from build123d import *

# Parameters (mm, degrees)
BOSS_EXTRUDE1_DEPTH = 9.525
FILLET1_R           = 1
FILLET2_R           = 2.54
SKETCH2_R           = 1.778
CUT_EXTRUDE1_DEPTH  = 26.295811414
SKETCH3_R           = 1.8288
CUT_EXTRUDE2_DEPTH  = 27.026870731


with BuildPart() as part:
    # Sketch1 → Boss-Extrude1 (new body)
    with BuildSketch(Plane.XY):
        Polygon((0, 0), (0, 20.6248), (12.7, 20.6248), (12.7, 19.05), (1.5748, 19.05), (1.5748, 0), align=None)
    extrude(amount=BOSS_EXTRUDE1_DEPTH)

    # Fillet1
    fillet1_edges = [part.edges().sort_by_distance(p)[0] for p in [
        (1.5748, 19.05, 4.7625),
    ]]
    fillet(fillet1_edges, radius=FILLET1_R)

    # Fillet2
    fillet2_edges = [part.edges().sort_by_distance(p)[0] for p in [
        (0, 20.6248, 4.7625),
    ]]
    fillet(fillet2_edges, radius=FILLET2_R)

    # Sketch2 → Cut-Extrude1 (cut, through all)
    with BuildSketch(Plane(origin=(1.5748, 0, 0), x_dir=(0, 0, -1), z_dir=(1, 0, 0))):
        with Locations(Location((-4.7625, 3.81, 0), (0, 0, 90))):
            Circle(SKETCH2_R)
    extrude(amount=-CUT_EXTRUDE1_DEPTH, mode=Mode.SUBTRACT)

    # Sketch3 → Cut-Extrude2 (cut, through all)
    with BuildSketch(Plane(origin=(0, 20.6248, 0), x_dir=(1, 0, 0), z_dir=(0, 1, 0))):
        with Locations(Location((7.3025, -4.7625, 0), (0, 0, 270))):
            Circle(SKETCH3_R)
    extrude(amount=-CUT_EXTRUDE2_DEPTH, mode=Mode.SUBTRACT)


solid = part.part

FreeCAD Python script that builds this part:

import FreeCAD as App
import Part
import Sketcher

V = App.Vector
Q = App.Units.Quantity


def edges_at(feature, points):
    """Names of the edges that pass closest to the given points."""
    edges = feature.Shape.Edges
    near = lambda p: min(range(len(edges)), key=lambda i: edges[i].distToShape(Part.Vertex(*p))[0])
    return sorted({f"Edge{near(p) + 1}" for p in points})

doc = App.newDocument("Part")
body = doc.addObject("PartDesign::Body", "Body")

# Sketch on XY plane
sketch1 = doc.addObject("Sketcher::SketchObject", "Sketch")
body.addObject(sketch1)
sketch1.AttachmentSupport = (doc.XY_Plane, [""])
sketch1.MapMode = "FlatFace"
sketch1.addGeometry(Part.LineSegment(V(0, 20.6, 0), V(0, 0, 0)), False)
sketch1.addGeometry(Part.LineSegment(V(0, 0, 0), V(1.6, 0, 0)), False)
sketch1.addGeometry(Part.LineSegment(V(1.6, 0, 0), V(1.6, 19.1, 0)), False)
sketch1.addGeometry(Part.LineSegment(V(1.6, 19.1, 0), V(12.7, 19.1, 0)), False)
sketch1.addGeometry(Part.LineSegment(V(12.7, 19.1, 0), V(12.7, 20.6, 0)), False)
sketch1.addGeometry(Part.LineSegment(V(12.7, 20.6, 0), V(0, 20.6, 0)), False)
sketch1.addConstraint(Sketcher.Constraint("Coincident", 0, 2, 1, 1))
sketch1.addConstraint(Sketcher.Constraint("Coincident", 1, 2, 2, 1))
sketch1.addConstraint(Sketcher.Constraint("Coincident", 2, 2, 3, 1))
sketch1.addConstraint(Sketcher.Constraint("Coincident", 3, 2, 4, 1))
sketch1.addConstraint(Sketcher.Constraint("Coincident", 4, 2, 5, 1))
sketch1.addConstraint(Sketcher.Constraint("Coincident", 5, 2, 0, 1))
sketch1.addConstraint(Sketcher.Constraint("Vertical", 0))
sketch1.addConstraint(Sketcher.Constraint("Horizontal", 1))
sketch1.addConstraint(Sketcher.Constraint("Vertical", 2))
sketch1.addConstraint(Sketcher.Constraint("Horizontal", 3))
sketch1.addConstraint(Sketcher.Constraint("Vertical", 4))
sketch1.addConstraint(Sketcher.Constraint("Horizontal", 5))
sketch1.addConstraint(Sketcher.Constraint("Coincident", 0, 2, -1, 1))
sketch1.addConstraint(Sketcher.Constraint("Equal", 1, 4))
sketch1.addConstraint(Sketcher.Constraint("DistanceX", 5, 2, 5, 1, Q("0.5 in")))
sketch1.addConstraint(Sketcher.Constraint("DistanceY", 2, 1, 2, 2, Q("0.75 in")))
sketch1.addConstraint(Sketcher.Constraint("DistanceX", 1, 1, 1, 2, Q("0.062 in")))
pad1 = doc.addObject("PartDesign::Pad", "Pad")
body.addObject(pad1)
pad1.Profile = sketch1
pad1.Length = Q("0.375 in")
doc.recompute()

fillet = doc.addObject("PartDesign::Fillet", "Fillet")
body.addObject(fillet)
fillet.Base = (pad1, edges_at(pad1, [(1.575, 19.05, 4.763)]))
fillet.Radius = 1
doc.recompute()

fillet2 = doc.addObject("PartDesign::Fillet", "Fillet001")
body.addObject(fillet2)
fillet2.Base = (fillet, edges_at(fillet, [(0, 20.625, 4.763)]))
fillet2.Radius = Q("0.1 in")

# Sketch on YZ plane
sketch2 = doc.addObject("Sketcher::SketchObject", "Sketch001")
body.addObject(sketch2)
sketch2.AttachmentSupport = (doc.YZ_Plane, [""])
sketch2.MapMode = "FlatFace"
sketch2.AttachmentOffset = App.Placement(V(0, 0, 0.062 * 25.4), App.Rotation())
sketch2.addGeometry(Part.Circle(V(3.8, 4.8, 0), V(0, 0, 1), 1.8), False)
sketch2.addConstraint(Sketcher.Constraint("Diameter", 0, Q("0.14 in")))
sketch2.addConstraint(Sketcher.Constraint("DistanceX", -1, 1, 0, 3, Q("0.15 in")))
sketch2.addConstraint(Sketcher.Constraint("DistanceY", -1, 1, 0, 3, Q("0.1875 in")))
pocket1 = doc.addObject("PartDesign::Pocket", "Pocket")
body.addObject(pocket1)
pocket1.Profile = sketch2
pocket1.Type = "ThroughAll"

# Sketch on XZ plane
sketch3 = doc.addObject("Sketcher::SketchObject", "Sketch002")
body.addObject(sketch3)
sketch3.AttachmentSupport = (doc.XZ_Plane, [""])
sketch3.MapMode = "FlatFace"
sketch3.AttachmentOffset = App.Placement(V(0, 0, -0.812 * 25.4), App.Rotation())
sketch3.addGeometry(Part.Circle(V(7.3, 4.8, 0), V(0, 0, 1), 1.8), False)
sketch3.addConstraint(Sketcher.Constraint("Diameter", 0, Q("0.144 in")))
sketch3.addConstraint(Sketcher.Constraint("DistanceY", -1, 1, 0, 3, Q("0.1875 in")))
sketch3.addConstraint(Sketcher.Constraint("DistanceX", -1, 1, 0, 3, Q("0.2875 in")))
pocket2 = doc.addObject("PartDesign::Pocket", "Pocket001")
body.addObject(pocket2)
pocket2.Profile = sketch3
pocket2.Type = "ThroughAll"
pocket2.Reversed = True

doc.recompute()
